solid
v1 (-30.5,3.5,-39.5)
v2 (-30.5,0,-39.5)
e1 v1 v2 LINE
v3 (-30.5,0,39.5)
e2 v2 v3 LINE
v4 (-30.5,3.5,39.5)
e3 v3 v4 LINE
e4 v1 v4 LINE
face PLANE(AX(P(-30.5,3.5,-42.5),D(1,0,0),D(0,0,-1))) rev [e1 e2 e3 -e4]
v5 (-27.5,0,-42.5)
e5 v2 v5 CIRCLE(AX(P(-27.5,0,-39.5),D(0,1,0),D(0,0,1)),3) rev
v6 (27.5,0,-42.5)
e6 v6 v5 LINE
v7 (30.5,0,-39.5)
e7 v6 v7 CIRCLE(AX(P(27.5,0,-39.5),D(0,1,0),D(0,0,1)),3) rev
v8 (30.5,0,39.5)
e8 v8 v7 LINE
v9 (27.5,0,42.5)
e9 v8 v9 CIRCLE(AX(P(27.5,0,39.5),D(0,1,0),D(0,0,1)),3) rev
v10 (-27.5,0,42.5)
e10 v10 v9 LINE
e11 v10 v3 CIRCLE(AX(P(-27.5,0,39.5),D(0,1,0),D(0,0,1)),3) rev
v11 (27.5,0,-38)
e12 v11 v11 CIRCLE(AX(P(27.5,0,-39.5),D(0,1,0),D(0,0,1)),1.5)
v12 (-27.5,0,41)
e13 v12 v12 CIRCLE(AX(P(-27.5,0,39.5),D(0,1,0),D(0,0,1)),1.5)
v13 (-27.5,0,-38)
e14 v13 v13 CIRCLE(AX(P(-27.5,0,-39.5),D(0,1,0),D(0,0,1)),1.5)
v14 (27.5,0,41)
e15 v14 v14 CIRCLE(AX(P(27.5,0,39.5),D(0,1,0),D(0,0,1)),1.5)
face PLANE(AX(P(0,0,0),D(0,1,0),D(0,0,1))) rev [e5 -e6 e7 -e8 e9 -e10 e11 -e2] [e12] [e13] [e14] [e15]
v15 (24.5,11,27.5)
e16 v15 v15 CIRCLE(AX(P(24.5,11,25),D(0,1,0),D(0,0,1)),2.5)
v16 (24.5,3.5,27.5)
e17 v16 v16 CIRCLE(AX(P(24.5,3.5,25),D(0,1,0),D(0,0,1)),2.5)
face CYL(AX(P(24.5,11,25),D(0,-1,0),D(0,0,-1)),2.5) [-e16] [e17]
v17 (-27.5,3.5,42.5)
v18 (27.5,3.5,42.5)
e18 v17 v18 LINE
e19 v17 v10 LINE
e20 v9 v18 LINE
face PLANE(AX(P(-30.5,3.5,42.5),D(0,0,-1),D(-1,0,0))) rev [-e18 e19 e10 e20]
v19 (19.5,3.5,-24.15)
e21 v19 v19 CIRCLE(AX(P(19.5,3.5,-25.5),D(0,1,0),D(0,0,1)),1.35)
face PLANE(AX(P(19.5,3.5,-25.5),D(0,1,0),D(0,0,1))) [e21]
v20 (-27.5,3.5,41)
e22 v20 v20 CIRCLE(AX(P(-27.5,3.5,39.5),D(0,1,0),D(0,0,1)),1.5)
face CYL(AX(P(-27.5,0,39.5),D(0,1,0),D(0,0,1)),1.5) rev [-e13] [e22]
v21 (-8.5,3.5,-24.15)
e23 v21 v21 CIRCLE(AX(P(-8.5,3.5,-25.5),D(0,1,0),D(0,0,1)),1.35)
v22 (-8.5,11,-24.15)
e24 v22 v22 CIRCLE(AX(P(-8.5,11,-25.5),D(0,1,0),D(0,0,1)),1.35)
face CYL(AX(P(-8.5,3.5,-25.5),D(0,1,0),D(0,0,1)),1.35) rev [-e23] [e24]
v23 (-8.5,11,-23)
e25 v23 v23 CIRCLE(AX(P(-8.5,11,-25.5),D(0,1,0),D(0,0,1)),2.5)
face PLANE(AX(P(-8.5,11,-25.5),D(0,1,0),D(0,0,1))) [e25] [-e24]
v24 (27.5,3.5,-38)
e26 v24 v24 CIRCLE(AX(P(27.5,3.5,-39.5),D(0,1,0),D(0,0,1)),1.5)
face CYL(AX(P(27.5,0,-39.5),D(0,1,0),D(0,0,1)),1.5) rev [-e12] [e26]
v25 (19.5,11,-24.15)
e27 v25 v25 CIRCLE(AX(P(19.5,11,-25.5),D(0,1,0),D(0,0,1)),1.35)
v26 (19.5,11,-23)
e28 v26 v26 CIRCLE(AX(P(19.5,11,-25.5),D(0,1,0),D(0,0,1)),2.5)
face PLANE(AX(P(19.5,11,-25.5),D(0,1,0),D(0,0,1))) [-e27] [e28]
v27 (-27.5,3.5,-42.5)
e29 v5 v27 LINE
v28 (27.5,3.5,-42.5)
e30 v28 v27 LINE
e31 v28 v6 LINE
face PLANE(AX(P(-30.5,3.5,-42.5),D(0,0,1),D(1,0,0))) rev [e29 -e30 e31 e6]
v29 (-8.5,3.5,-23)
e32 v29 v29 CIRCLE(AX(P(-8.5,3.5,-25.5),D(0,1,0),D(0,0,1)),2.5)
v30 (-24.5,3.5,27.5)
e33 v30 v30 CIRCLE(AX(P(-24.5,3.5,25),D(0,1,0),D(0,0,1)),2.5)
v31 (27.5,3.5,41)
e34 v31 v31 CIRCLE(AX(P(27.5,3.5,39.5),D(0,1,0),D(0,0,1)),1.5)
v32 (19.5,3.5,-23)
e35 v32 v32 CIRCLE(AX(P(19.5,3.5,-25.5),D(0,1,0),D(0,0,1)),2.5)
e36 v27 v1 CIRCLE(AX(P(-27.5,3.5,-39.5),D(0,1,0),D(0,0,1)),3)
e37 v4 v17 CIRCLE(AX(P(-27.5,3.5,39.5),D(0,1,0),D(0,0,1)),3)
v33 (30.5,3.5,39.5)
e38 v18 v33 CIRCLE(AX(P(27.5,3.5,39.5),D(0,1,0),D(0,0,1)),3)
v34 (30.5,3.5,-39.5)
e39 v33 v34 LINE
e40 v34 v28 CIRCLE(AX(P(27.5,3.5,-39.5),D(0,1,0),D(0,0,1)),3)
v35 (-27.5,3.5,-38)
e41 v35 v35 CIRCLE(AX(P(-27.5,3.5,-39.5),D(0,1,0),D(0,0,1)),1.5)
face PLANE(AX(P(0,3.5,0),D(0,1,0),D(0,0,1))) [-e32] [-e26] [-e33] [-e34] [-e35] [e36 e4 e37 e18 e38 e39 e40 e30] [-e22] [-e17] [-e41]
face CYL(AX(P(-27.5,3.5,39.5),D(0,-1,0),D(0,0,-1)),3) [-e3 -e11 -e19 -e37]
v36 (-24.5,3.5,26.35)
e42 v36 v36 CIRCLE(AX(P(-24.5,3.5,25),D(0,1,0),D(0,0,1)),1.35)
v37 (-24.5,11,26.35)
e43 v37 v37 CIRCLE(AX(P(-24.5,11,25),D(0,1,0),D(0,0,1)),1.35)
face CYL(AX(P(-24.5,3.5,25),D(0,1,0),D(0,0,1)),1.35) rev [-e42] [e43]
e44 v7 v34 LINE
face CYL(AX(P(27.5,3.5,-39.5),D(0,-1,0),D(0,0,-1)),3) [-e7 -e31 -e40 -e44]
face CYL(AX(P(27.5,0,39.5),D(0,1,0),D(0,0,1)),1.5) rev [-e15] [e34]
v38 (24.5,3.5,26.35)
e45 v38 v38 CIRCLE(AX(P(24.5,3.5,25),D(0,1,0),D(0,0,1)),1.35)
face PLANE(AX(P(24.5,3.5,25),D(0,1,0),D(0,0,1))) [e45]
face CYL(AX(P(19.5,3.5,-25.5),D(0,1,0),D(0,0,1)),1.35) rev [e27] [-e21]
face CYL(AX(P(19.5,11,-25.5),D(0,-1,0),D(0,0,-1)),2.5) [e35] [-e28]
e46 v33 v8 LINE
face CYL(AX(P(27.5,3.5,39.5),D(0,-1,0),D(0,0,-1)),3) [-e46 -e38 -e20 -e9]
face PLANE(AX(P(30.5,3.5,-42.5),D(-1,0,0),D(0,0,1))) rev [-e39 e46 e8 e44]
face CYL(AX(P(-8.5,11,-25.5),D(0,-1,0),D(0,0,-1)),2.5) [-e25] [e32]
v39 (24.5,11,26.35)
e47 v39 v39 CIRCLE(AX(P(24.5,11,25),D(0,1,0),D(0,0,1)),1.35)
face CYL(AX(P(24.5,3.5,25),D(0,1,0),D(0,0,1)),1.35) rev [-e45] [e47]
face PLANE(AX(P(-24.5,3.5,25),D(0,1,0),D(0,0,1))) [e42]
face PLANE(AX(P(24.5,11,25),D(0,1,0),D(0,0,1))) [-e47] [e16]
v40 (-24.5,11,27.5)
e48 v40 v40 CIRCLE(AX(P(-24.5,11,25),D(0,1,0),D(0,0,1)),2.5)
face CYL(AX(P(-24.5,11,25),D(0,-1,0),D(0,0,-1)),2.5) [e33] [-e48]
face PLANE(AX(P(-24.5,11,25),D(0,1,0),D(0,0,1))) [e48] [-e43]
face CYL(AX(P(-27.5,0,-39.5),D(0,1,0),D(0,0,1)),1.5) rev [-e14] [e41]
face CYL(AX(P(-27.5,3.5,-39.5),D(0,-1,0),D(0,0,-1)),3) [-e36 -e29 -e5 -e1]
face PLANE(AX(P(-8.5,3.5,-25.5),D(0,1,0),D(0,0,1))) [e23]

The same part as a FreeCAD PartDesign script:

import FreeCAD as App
import Part
import Sketcher
from FreeCAD import Vector


def edges_at(feature, points):
    """Names of the edges that pass closest to the given points."""
    edges = feature.Shape.Edges
    near = lambda p: min(range(len(edges)), key=lambda i: edges[i].distToShape(Part.Vertex(*p))[0])
    return sorted({f"Edge{near(p) + 1}" for p in points})

doc = App.newDocument("Part")
body = doc.addObject("PartDesign::Body", "Body")

# Sketch on XZ plane
sketch1 = body.newObject("Sketcher::SketchObject", "Sketch")
sketch1.AttachmentSupport = (doc.getObject("XZ_Plane"), [""])
sketch1.MapMode = "FlatFace"
sketch1.addGeometry(Part.LineSegment(Vector(-30, -42, 0), Vector(-30, 42, 0)), False)
sketch1.addGeometry(Part.LineSegment(Vector(-30, 42, 0), Vector(30, 42, 0)), False)
sketch1.addGeometry(Part.LineSegment(Vector(30, 42, 0), Vector(30, -42, 0)), False)
sketch1.addGeometry(Part.LineSegment(Vector(30, -42, 0), Vector(-30, -42, 0)), False)
sketch1.addConstraint(Sketcher.Constraint("Coincident", 0, 2, 1, 1))
sketch1.addConstraint(Sketcher.Constraint("Coincident", 1, 2, 2, 1))
sketch1.addConstraint(Sketcher.Constraint("Coincident", 2, 2, 3, 1))
sketch1.addConstraint(Sketcher.Constraint("Coincident", 3, 2, 0, 1))
sketch1.addConstraint(Sketcher.Constraint("Vertical", 0))
sketch1.addConstraint(Sketcher.Constraint("Horizontal", 1))
sketch1.addConstraint(Sketcher.Constraint("Vertical", 2))
sketch1.addConstraint(Sketcher.Constraint("Horizontal", 3))
sketch1.addConstraint(Sketcher.Constraint("Symmetric", 0, 2, 2, 2, -1, 1))
sketch1.addConstraint(Sketcher.Constraint("DistanceX", 1, 1, 1, 2, 61.0))
sketch1.addConstraint(Sketcher.Constraint("DistanceY", 0, 1, 0, 2, 85.0))
pad1 = body.newObject("PartDesign::Pad", "Pad")
pad1.Profile = sketch1
pad1.Length = 3.5
pad1.Reversed = True

# Sketch on XZ plane
sketch2 = body.newObject("Sketcher::SketchObject", "Sketch001")
sketch2.AttachmentSupport = (doc.getObject("XZ_Plane"), [""])
sketch2.MapMode = "FlatFace"
sketch2.AttachmentOffset = App.Placement(Vector(0, 0, -3.5), App.Rotation())
sketch2.addGeometry(Part.Circle(Vector(-27.5, -39.5, 0), Vector(0, 0, 1), 1.5), False)
sketch2.addGeometry(Part.Circle(Vector(27.5, -39.5, 0), Vector(0, 0, 1), 1.5), False)
sketch2.addGeometry(Part.Circle(Vector(-27.5, 39.5, 0), Vector(0, 0, 1), 1.5), False)
sketch2.addGeometry(Part.Circle(Vector(27.5, 39.5, 0), Vector(0, 0, 1), 1.5), False)
sketch2.addConstraint(Sketcher.Constraint("Equal", 0, 1))
sketch2.addConstraint(Sketcher.Constraint("Equal", 1, 2))
sketch2.addConstraint(Sketcher.Constraint("Equal", 2, 3))
sketch2.addConstraint(Sketcher.Constraint("Symmetric", 1, 3, 2, 3, -1, 1))
sketch2.addConstraint(Sketcher.Constraint("Symmetric", 0, 3, 3, 3, -1, 1))
sketch2.addConstraint(Sketcher.Constraint("Symmetric", 0, 3, 1, 3, -2))
sketch2.addConstraint(Sketcher.Constraint("Diameter", 0, 3.0))
sketch2.addConstraint(Sketcher.Constraint("DistanceX", 0, 3, 1, 3, 55.0))
sketch2.addConstraint(Sketcher.Constraint("DistanceY", 0, 3, 2, 3, 79.0))
pocket1 = body.newObject("PartDesign::Pocket", "Pocket")
pocket1.Profile = sketch2
pocket1.Length = 3.5
pocket1.Reversed = True

# Sketch on XZ plane
sketch3 = body.newObject("Sketcher::SketchObject", "Sketch002")
sketch3.AttachmentSupport = (doc.getObject("XZ_Plane"), [""])
sketch3.MapMode = "FlatFace"
sketch3.AttachmentOffset = App.Placement(Vector(0, 0, -3.5), App.Rotation())
sketch3.addGeometry(Part.Circle(Vector(-24.5, 25, 0), Vector(0, 0, 1), 2.5), False)
sketch3.addGeometry(Part.Circle(Vector(24.5, 25, 0), Vector(0, 0, 1), 2.5), False)
sketch3.addGeometry(Part.Circle(Vector(19.5, -25.5, 0), Vector(0, 0, 1), 2.5), False)
sketch3.addGeometry(Part.Circle(Vector(-8.5, -25.5, 0), Vector(0, 0, 1), 2.5), False)
sketch3.addConstraint(Sketcher.Constraint("Equal", 0, 1))
sketch3.addConstraint(Sketcher.Constraint("Equal", 1, 2))
sketch3.addConstraint(Sketcher.Constraint("Equal", 2, 3))
sketch3.addConstraint(Sketcher.Constraint("Symmetric", 0, 3, 1, 3, -2))
sketch3.addConstraint(Sketcher.Constraint("Horizontal", 2, 3, 3, 3))
sketch3.addConstraint(Sketcher.Constraint("Diameter", 0, 5.0))
sketch3.addConstraint(Sketcher.Constraint("DistanceY", -1, 1, 0, 3, 25.0))
sketch3.addConstraint(Sketcher.Constraint("DistanceX", 0, 3, 1, 3, 49.0))
sketch3.addConstraint(Sketcher.Constraint("DistanceX", 2, 3, 1, 3, 5.0))
sketch3.addConstraint(Sketcher.Constraint("DistanceX", 3, 3, 2, 3, 28.0))
sketch3.addConstraint(Sketcher.Constraint("DistanceY", 2, 3, -1, 1, 25.5))
pad2 = body.newObject("PartDesign::Pad", "Pad001")
pad2.Profile = sketch3
pad2.Length = 7.5
pad2.Reversed = True

# Sketch on XZ plane
sketch4 = body.newObject("Sketcher::SketchObject", "Sketch003")
sketch4.AttachmentSupport = (doc.getObject("XZ_Plane"), [""])
sketch4.MapMode = "FlatFace"
sketch4.AttachmentOffset = App.Placement(Vector(0, 0, -11), App.Rotation())
sketch4.addGeometry(Part.Circle(Vector(-8.5, -25.5, 0), Vector(0, 0, 1), 1.4), False)
sketch4.addGeometry(Part.Circle(Vector(19.5, -25.5, 0), Vector(0, 0, 1), 1.4), False)
sketch4.addGeometry(Part.Circle(Vector(-24.5, 25, 0), Vector(0, 0, 1), 1.4), False)
sketch4.addGeometry(Part.Circle(Vector(24.5, 25, 0), Vector(0, 0, 1), 1.4), False)
sketch4.addConstraint(Sketcher.Constraint("Equal", 0, 1))
sketch4.addConstraint(Sketcher.Constraint("Equal", 1, 2))
sketch4.addConstraint(Sketcher.Constraint("Equal", 2, 3))
sketch4.addConstraint(Sketcher.Constraint("Symmetric", 2, 3, 3, 3, -2))
sketch4.addConstraint(Sketcher.Constraint("Horizontal", 0, 3, 1, 3))
sketch4.addConstraint(Sketcher.Constraint("Diameter", 0, 2.7))
sketch4.addConstraint(Sketcher.Constraint("DistanceY", -1, 1, 2, 3, 25.0))
sketch4.addConstraint(Sketcher.Constraint("DistanceX", 0, 3, 1, 3, 28.0))
sketch4.addConstraint(Sketcher.Constraint("DistanceX", 2, 3, 0, 3, 16.0))
sketch4.addConstraint(Sketcher.Constraint("DistanceX", 2, 3, 3, 3, 49.0))
sketch4.addConstraint(Sketcher.Constraint("DistanceY", 0, 3, -1, 1, 25.5))
pocket2 = body.newObject("PartDesign::Pocket", "Pocket001")
pocket2.Profile = sketch4
pocket2.Length = 7.5
pocket2.Reversed = True
doc.recompute()

fillet = body.newObject("PartDesign::Fillet", "Fillet")
fillet.Base = (pocket2, edges_at(pocket2, [
    (30.5, 1.75, 42.5),
    (-30.5, 1.75, 42.5),
    (-30.5, 1.75, -42.5),
    (30.5, 1.75, -42.5),
]))
fillet.Radius = 3

doc.recompute()
